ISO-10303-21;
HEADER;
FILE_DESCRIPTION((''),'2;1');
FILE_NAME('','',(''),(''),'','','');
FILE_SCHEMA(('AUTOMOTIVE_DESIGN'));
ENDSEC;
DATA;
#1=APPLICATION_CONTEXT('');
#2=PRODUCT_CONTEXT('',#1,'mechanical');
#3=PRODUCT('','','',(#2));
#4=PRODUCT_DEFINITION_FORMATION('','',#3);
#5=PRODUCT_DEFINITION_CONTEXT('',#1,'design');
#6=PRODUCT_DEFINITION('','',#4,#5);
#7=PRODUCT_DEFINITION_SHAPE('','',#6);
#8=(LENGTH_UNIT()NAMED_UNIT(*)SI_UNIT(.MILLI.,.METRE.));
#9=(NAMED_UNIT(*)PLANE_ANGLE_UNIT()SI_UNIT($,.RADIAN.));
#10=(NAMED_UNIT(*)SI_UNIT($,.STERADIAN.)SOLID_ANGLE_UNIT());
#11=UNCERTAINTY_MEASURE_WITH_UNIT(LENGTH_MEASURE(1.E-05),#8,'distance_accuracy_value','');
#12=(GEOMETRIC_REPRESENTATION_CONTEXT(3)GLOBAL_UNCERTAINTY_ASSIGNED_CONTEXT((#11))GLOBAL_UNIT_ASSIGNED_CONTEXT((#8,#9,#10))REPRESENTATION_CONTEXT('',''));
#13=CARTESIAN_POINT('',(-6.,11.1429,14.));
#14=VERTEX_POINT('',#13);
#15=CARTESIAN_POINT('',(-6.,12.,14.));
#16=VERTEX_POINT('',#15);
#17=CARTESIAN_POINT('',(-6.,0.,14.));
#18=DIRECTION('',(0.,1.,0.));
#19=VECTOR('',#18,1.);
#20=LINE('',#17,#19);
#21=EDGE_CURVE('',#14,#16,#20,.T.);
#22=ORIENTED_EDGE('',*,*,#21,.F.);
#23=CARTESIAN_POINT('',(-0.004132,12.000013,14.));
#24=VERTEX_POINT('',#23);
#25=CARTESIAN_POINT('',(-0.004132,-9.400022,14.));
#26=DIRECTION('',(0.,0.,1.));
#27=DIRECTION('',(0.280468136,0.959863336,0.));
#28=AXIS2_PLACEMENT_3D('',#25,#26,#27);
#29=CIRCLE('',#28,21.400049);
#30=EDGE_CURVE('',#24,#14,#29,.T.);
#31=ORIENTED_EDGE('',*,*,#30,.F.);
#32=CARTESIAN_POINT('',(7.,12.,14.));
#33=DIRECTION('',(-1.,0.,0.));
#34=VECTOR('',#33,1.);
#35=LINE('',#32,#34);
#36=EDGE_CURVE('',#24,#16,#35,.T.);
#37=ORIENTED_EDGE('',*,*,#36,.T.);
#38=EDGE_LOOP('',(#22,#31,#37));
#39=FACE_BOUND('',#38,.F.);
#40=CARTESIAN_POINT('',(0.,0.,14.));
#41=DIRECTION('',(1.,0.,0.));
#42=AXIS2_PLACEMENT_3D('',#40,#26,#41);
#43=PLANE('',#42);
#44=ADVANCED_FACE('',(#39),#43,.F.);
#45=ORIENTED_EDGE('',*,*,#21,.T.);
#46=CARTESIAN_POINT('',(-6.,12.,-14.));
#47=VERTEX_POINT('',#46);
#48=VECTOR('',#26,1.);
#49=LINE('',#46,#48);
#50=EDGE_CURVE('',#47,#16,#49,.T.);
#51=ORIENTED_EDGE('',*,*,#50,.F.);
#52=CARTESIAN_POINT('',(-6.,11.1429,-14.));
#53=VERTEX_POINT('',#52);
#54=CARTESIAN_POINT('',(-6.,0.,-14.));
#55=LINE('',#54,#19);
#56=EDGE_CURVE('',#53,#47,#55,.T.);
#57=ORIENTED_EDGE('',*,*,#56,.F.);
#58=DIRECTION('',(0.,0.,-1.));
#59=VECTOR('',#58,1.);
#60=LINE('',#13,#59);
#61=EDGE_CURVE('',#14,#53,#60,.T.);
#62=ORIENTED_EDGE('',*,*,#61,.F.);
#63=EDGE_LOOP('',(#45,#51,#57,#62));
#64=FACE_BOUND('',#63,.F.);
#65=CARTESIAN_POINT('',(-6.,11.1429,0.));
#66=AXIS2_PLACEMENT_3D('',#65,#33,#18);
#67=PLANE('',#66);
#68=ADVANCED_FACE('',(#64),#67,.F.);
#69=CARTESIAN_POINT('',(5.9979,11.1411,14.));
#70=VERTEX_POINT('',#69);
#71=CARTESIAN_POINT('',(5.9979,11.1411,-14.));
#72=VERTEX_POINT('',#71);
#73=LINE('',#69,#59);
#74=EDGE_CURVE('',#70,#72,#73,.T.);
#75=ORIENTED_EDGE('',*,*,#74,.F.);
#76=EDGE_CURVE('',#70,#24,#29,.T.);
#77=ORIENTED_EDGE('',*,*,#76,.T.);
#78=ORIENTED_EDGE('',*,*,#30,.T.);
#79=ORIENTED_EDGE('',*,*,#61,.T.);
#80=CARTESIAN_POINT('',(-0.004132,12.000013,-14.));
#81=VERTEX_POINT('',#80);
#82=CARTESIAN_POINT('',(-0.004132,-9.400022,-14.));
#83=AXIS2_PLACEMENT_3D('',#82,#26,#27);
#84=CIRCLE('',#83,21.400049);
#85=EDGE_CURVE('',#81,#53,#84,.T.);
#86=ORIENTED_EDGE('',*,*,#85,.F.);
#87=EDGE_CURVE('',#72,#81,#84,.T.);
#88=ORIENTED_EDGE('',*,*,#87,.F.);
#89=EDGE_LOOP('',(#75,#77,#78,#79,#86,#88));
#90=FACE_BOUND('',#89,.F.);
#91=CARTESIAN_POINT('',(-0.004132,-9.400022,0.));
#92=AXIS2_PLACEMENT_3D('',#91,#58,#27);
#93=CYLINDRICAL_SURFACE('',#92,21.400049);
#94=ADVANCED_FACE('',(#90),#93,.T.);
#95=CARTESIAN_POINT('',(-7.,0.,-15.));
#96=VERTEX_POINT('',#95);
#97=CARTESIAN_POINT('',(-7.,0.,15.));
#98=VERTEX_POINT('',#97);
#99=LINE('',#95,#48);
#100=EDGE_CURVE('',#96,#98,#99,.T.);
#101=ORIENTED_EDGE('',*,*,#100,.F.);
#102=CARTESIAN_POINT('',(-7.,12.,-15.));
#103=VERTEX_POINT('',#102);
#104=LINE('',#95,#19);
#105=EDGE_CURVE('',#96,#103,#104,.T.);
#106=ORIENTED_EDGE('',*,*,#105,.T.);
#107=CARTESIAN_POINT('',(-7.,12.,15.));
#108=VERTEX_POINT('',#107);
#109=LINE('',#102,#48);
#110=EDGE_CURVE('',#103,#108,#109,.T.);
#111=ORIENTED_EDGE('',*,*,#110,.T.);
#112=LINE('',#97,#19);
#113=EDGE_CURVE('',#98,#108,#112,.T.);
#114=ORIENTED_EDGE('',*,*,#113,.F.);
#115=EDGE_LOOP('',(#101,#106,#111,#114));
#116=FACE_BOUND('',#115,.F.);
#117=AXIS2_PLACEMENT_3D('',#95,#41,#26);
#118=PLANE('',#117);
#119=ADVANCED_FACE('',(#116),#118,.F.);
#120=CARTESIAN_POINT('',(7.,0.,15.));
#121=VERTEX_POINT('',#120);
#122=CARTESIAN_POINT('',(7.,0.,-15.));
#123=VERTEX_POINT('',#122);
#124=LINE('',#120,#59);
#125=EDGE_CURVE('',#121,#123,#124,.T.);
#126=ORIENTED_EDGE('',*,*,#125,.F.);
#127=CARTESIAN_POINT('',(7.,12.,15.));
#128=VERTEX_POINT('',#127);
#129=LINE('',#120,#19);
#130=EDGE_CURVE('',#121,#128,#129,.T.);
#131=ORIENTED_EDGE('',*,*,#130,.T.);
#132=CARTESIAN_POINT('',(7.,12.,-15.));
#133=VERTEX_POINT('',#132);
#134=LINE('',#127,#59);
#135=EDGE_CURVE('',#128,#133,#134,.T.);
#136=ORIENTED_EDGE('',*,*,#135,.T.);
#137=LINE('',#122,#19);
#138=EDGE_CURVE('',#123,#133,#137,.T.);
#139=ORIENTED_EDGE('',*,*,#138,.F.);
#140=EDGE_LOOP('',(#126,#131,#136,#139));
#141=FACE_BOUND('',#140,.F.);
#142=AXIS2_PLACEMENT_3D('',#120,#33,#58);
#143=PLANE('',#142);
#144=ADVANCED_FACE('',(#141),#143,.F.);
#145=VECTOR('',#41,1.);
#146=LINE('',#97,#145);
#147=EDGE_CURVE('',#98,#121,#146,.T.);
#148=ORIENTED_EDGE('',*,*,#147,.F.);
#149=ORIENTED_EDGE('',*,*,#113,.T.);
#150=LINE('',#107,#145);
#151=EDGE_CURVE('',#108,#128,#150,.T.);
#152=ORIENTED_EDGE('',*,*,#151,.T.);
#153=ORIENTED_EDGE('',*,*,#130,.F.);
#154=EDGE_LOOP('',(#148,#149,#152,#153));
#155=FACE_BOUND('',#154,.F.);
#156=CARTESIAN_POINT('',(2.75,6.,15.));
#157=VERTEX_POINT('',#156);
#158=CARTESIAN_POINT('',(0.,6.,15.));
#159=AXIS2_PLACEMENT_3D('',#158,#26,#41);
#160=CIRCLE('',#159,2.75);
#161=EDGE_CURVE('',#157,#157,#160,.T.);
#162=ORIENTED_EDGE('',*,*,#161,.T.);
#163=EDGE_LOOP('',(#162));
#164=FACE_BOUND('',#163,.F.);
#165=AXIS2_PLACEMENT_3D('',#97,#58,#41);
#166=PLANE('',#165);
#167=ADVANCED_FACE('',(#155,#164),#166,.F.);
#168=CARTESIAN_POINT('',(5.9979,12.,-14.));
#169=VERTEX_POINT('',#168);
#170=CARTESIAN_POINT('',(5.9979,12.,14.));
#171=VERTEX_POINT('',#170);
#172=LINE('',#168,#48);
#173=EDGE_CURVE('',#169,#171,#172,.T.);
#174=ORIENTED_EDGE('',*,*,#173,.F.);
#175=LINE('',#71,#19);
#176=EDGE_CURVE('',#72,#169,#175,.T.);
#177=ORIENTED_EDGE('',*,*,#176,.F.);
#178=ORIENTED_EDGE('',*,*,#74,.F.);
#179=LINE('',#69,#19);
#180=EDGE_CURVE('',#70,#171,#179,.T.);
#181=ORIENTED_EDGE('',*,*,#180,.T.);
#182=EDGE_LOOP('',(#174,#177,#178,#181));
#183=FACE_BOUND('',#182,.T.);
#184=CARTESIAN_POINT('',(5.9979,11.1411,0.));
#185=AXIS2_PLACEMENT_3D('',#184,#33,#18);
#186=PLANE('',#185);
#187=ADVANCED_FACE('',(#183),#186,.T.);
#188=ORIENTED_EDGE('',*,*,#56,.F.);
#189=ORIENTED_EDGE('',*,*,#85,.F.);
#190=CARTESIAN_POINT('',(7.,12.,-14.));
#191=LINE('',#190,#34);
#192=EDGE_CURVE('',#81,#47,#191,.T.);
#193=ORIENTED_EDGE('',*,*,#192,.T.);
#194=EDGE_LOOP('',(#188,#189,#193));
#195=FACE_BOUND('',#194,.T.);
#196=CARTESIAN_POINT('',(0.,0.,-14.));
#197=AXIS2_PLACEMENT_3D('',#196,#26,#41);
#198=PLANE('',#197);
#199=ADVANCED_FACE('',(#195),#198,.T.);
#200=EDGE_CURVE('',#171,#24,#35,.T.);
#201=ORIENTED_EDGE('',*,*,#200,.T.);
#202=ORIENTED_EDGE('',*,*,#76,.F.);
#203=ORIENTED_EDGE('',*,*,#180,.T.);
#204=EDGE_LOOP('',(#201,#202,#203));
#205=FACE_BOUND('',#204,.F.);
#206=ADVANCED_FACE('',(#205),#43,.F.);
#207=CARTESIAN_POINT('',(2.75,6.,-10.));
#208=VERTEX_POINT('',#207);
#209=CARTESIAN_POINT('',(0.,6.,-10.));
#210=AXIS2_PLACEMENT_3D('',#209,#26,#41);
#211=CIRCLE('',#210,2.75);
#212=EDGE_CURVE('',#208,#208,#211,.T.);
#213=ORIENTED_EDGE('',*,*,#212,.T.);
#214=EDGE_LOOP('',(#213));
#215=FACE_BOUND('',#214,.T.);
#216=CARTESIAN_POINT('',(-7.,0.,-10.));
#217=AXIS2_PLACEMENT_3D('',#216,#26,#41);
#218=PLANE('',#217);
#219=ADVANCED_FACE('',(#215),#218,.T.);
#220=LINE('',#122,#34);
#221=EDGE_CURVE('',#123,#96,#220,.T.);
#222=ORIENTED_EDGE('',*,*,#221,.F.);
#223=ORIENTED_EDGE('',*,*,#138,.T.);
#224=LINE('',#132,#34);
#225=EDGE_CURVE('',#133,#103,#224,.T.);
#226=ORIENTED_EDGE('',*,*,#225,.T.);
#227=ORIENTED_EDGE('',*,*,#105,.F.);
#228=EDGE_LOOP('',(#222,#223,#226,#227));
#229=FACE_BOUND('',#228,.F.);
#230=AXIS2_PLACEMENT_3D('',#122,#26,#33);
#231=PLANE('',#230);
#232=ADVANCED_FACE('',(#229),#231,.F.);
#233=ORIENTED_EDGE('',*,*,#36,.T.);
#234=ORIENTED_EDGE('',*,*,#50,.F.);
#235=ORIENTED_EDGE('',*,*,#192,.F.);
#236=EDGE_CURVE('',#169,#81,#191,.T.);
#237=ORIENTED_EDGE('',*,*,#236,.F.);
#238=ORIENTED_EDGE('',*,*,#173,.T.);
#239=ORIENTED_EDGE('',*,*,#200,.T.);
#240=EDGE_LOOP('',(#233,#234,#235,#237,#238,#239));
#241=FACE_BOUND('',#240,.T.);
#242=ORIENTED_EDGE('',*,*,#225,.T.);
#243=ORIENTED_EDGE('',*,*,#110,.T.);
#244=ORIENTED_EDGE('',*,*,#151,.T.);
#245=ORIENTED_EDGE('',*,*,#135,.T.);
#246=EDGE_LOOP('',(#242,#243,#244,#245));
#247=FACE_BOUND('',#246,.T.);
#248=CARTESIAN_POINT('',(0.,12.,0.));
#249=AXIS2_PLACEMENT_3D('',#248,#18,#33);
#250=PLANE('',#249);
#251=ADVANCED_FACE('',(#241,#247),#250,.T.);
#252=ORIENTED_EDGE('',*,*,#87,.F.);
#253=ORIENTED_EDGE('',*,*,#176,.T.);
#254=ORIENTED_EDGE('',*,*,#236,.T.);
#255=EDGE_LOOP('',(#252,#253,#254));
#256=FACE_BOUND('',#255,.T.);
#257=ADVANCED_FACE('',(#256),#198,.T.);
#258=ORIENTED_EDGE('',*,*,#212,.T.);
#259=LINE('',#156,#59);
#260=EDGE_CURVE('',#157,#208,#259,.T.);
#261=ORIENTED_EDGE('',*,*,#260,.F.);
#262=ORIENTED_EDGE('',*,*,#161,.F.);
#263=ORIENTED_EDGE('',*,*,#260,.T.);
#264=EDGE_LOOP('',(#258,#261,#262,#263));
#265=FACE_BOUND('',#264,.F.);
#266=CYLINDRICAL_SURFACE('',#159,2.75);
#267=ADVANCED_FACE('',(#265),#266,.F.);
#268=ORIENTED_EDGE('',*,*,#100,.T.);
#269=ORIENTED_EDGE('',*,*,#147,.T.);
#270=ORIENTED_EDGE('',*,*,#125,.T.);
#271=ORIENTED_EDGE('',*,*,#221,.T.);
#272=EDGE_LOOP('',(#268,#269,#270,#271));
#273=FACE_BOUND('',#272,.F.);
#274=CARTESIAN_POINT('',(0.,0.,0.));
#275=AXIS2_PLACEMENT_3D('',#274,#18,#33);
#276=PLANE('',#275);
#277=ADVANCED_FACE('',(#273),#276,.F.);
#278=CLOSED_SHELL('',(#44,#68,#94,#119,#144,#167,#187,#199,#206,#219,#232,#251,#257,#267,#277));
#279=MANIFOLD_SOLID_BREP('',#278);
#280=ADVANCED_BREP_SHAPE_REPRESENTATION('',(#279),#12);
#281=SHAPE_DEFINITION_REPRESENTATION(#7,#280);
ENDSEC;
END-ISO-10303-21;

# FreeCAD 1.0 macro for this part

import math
import FreeCAD as App
import Part
import Sketcher
Q = App.Units.Quantity


def add_polygon(sketch, points):
    """Adds a closed chain of lines whose ends are joined by coincident constraints."""
    first, n = sketch.GeometryCount, len(points)
    for a, b in zip(points, points[1:] + points[:1]):
        sketch.addGeometry(Part.LineSegment(App.Vector(*a, 0), App.Vector(*b, 0)), False)
    for i in range(n):
        sketch.addConstraint(Sketcher.Constraint("Coincident", first + i, 2, first + (i + 1) % n, 1))

doc = App.newDocument("Part")
body = doc.addObject("PartDesign::Body", "Body")

sketch1 = doc.addObject("Sketcher::SketchObject", "Sketch")
body.addObject(sketch1)
sketch1.AttachmentSupport = (doc.XZ_Plane, [""])
sketch1.MapMode = "FlatFace"
add_polygon(sketch1, [(-7, 15), (7, 15), (7, -15), (-7, -15)])
sketch1.addConstraint(Sketcher.Constraint("Horizontal", 0))
sketch1.addConstraint(Sketcher.Constraint("Vertical", 1))
sketch1.addConstraint(Sketcher.Constraint("Horizontal", 2))
sketch1.addConstraint(Sketcher.Constraint("Vertical", 3))
sketch1.addConstraint(Sketcher.Constraint("Symmetric", 0, 2, 2, 2, -1, 1))
sketch1.addConstraint(Sketcher.Constraint("DistanceX", 0, 1, 0, 2, Q("14 mm")))
sketch1.addConstraint(Sketcher.Constraint("DistanceY", 1, 2, 1, 1, Q("30 mm")))
pad1 = doc.addObject("PartDesign::Pad", "Pad")
body.addObject(pad1)
pad1.Profile = sketch1
pad1.Length = 12
pad1.Reversed = True

sketch2 = doc.addObject("Sketcher::SketchObject", "Sketch001")
body.addObject(sketch2)
sketch2.AttachmentSupport = (doc.XY_Plane, [""])
sketch2.MapMode = "FlatFace"
sketch2.AttachmentOffset = App.Placement(App.Vector(0, 0, 15), App.Rotation())
sketch2.addGeometry(Part.Circle(App.Vector(0, 6, 0), App.Vector(0, 0, 1), 2.8), False)
sketch2.addConstraint(Sketcher.Constraint("PointOnObject", 0, 3, -2))
sketch2.addConstraint(Sketcher.Constraint("Diameter", 0, Q("5.5 mm")))
sketch2.addConstraint(Sketcher.Constraint("DistanceY", -1, 1, 0, 3, Q("6 mm")))
pocket1 = doc.addObject("PartDesign::Pocket", "Pocket")
body.addObject(pocket1)
pocket1.Profile = sketch2
pocket1.Length = 25

sketch3 = doc.addObject("Sketcher::SketchObject", "Sketch002")
body.addObject(sketch3)
sketch3.AttachmentSupport = (doc.XY_Plane, [""])
sketch3.MapMode = "FlatFace"
sketch3.addGeometry(Part.LineSegment(App.Vector(6, 11.1, 0), App.Vector(6, 12, 0)), False)
sketch3.addGeometry(Part.LineSegment(App.Vector(6, 12, 0), App.Vector(0, 12, 0)), False)
sketch3.addGeometry(Part.ArcOfCircle(Part.Circle(App.Vector(0, -9.4, 0), App.Vector(0, 0, 1), 21.4), math.radians(73.71), math.radians(90)), False)
sketch3.addGeometry(Part.ArcOfCircle(Part.Circle(App.Vector(0, -9.4, 0), App.Vector(0, 0, 1), 21.4), math.radians(90), math.radians(106.27)), False)
sketch3.addGeometry(Part.LineSegment(App.Vector(0, 12, 0), App.Vector(-6, 12, 0)), False)
sketch3.addGeometry(Part.LineSegment(App.Vector(-6, 12, 0), App.Vector(-6, 11.1, 0)), False)
sketch3.addConstraint(Sketcher.Constraint("Coincident", 0, 2, 1, 1))
sketch3.addConstraint(Sketcher.Constraint("Tangent", 1, 2, 2, 2))
sketch3.addConstraint(Sketcher.Constraint("Coincident", 2, 1, 0, 1))
sketch3.addConstraint(Sketcher.Constraint("Tangent", 3, 1, 4, 1))
sketch3.addConstraint(Sketcher.Constraint("Coincident", 4, 2, 5, 1))
sketch3.addConstraint(Sketcher.Constraint("Coincident", 5, 2, 3, 2))
sketch3.addConstraint(Sketcher.Constraint("Vertical", 0))
sketch3.addConstraint(Sketcher.Constraint("Horizontal", 1))
sketch3.addConstraint(Sketcher.Constraint("Horizontal", 4))
sketch3.addConstraint(Sketcher.Constraint("Vertical", 5))
sketch3.addConstraint(Sketcher.Constraint("Coincident", 3, 3, 2, 3))
sketch3.addConstraint(Sketcher.Constraint("Equal", 2, 3))
sketch3.addConstraint(Sketcher.Constraint("DistanceY", -1, 1, 0, 2, Q("12 mm")))
sketch3.addConstraint(Sketcher.Constraint("DistanceX", 4, 2, -1, 1, Q("6 mm")))
sketch3.addConstraint(Sketcher.Constraint("Radius", 2, Q("21.3998 mm")))
sketch3.addConstraint(Sketcher.Constraint("DistanceX", 1, 2, 1, 1, Q("6.002 mm")))
sketch3.addConstraint(Sketcher.Constraint("DistanceY", 5, 2, 5, 1, Q("0.857 mm")))
pocket2 = doc.addObject("PartDesign::Pocket", "Pocket001")
body.addObject(pocket2)
pocket2.Profile = sketch3
pocket2.Length = 28
pocket2.Midplane = True

doc.recompute()
